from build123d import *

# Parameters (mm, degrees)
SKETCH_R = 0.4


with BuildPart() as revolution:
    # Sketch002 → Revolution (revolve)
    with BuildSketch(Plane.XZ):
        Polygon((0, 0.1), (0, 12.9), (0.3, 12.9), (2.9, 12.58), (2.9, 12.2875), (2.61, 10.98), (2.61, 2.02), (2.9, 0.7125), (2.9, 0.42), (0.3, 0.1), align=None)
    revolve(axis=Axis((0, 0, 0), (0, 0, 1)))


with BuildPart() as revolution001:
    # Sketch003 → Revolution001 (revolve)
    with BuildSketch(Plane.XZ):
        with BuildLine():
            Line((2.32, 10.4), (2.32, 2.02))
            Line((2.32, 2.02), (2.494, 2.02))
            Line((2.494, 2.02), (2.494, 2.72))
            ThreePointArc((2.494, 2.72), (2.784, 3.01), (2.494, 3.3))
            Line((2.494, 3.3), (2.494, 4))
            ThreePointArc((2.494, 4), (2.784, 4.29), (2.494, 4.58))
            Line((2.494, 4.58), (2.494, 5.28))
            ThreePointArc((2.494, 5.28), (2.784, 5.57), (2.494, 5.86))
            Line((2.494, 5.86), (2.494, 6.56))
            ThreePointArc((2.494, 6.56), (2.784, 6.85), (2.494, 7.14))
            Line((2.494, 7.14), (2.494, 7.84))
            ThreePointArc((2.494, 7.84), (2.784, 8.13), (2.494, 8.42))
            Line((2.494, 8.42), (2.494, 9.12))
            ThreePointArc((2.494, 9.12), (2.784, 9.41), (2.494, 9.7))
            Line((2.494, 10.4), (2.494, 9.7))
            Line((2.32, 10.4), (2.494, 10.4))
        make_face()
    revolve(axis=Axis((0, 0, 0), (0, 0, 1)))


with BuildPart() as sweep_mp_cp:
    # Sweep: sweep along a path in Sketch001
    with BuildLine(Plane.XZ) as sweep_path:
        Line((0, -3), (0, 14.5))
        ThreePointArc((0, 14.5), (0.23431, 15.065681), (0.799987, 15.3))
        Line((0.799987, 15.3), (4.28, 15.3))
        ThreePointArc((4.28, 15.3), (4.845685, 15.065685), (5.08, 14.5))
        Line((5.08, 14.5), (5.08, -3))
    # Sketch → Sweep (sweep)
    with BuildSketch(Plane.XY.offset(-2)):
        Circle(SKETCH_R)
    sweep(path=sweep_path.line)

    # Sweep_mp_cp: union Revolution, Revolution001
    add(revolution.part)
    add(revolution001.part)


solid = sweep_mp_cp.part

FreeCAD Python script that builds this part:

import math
import FreeCAD as App
import Part
import Sketcher
from FreeCAD import Vector
Q = App.Units.Quantity

doc = App.newDocument("Part")
params = doc.addObject("Spreadsheet::Sheet", "Params")
for row, (alias, value) in enumerate([
    ("sketch1_width", "0.3 mm"),
    ("sketch1_height", "12.8 mm"),
    ("sketch1_height2", "8.96 mm"),
    ("revolution_angle", "360 deg"),
    ("sketch2_radius", "0.29 mm"),
    ("sketch2_height", "0.7 mm"),
    ("revolution2_angle", "360 deg"),
    ("sketch3_diameter", "0.8 mm"),
    ("sketch4_radius", "0.8 mm"),
    ("sketch4_height", "17.5 mm"),
], start=1):
    params.set(f"A{row}", alias)
    params.set(f"B{row}", "=" + value)
    params.setAlias(f"B{row}", alias)

body = doc.addObject("PartDesign::Body", "Body")

sketch1 = body.newObject("Sketcher::SketchObject", "Sketch")
sketch1.AttachmentSupport = (doc.getObject("XZ_Plane"), [""])
sketch1.MapMode = "FlatFace"
sketch1.addGeometry(Part.LineSegment(Vector(0, 12.9, 0), Vector(0, 0.1, 0)), False)
sketch1.addGeometry(Part.LineSegment(Vector(0, 0.1, 0), Vector(0.3, 0.1, 0)), False)
sketch1.addGeometry(Part.LineSegment(Vector(0.3, 0.1, 0), Vector(2.9, 0.42, 0)), False)
sketch1.addGeometry(Part.LineSegment(Vector(2.9, 0.42, 0), Vector(2.9, 0.71, 0)), False)
sketch1.addGeometry(Part.LineSegment(Vector(2.9, 0.71, 0), Vector(2.61, 2.02, 0)), False)
sketch1.addGeometry(Part.LineSegment(Vector(2.61, 2.02, 0), Vector(2.61, 10.98, 0)), False)
sketch1.addGeometry(Part.LineSegment(Vector(2.61, 10.98, 0), Vector(2.9, 12.29, 0)), False)
sketch1.addGeometry(Part.LineSegment(Vector(2.9, 12.29, 0), Vector(2.9, 12.58, 0)), False)
sketch1.addGeometry(Part.LineSegment(Vector(2.9, 12.58, 0), Vector(0.3, 12.9, 0)), False)
sketch1.addGeometry(Part.LineSegment(Vector(0.3, 12.9, 0), Vector(0, 12.9, 0)), False)
sketch1.addConstraint(Sketcher.Constraint("Coincident", 0, 2, 1, 1))
sketch1.addConstraint(Sketcher.Constraint("Coincident", 1, 2, 2, 1))
sketch1.addConstraint(Sketcher.Constraint("Coincident", 2, 2, 3, 1))
sketch1.addConstraint(Sketcher.Constraint("Coincident", 3, 2, 4, 1))
sketch1.addConstraint(Sketcher.Constraint("Coincident", 4, 2, 5, 1))
sketch1.addConstraint(Sketcher.Constraint("Coincident", 5, 2, 6, 1))
sketch1.addConstraint(Sketcher.Constraint("Coincident", 6, 2, 7, 1))
sketch1.addConstraint(Sketcher.Constraint("Coincident", 7, 2, 8, 1))
sketch1.addConstraint(Sketcher.Constraint("Coincident", 8, 2, 9, 1))
sketch1.addConstraint(Sketcher.Constraint("Coincident", 9, 2, 0, 1))
sketch1.addConstraint(Sketcher.Constraint("Vertical", 0))
sketch1.addConstraint(Sketcher.Constraint("Horizontal", 1))
sketch1.addConstraint(Sketcher.Constraint("Vertical", 3))
sketch1.addConstraint(Sketcher.Constraint("Vertical", 5))
sketch1.addConstraint(Sketcher.Constraint("Vertical", 7))
sketch1.addConstraint(Sketcher.Constraint("Horizontal", 9))
sketch1.addConstraint(Sketcher.Constraint("PointOnObject", 0, 2, -2))
sketch1.addConstraint(Sketcher.Constraint("Vertical", 3, 2, 6, 2))
sketch1.addConstraint(Sketcher.Constraint("Vertical", 1, 2, 8, 2))
sketch1.addConstraint(Sketcher.Constraint("Equal", 3, 7))
sketch1.addConstraint(Sketcher.Constraint("Equal", 4, 6))
sketch1.addConstraint(Sketcher.Constraint("Equal", 2, 8))
sketch1.addConstraint(Sketcher.Constraint("DistanceX", 1, 1, 1, 2, Q("0.3 mm")))
sketch1.addConstraint(Sketcher.Constraint("DistanceY", 0, 2, 0, 1, Q("12.8 mm")))
sketch1.addConstraint(Sketcher.Constraint("DistanceY", 5, 1, 5, 2, Q("8.96 mm")))
sketch1.addConstraint(Sketcher.Constraint("DistanceY", -1, 1, 0, 2, Q("0.1 mm")))
sketch1.addConstraint(Sketcher.Constraint("DistanceX", -1, 1, 2, 2, Q("2.9 mm")))
sketch1.addConstraint(Sketcher.Constraint("DistanceY", 2, 2, 4, 2, Q("1.6 mm")))
sketch1.addConstraint(Sketcher.Constraint("DistanceX", -1, 1, 4, 2, Q("2.61 mm")))
sketch1.addConstraint(Sketcher.Constraint("DistanceY", 3, 1, 3, 2, Q("0.2925 mm")))
sketch1.setExpression("Constraints[22]", "Params.sketch1_width")
sketch1.setExpression("Constraints[23]", "Params.sketch1_height")
sketch1.setExpression("Constraints[24]", "Params.sketch1_height2")
revolution = body.newObject("PartDesign::Revolution", "Revolution")
revolution.Profile = sketch1
revolution.ReferenceAxis = (sketch1, ["V_Axis"])
revolution.setExpression("Angle", "Params.revolution_angle")
body2 = doc.addObject("PartDesign::Body", "Body001")

sketch2 = body2.newObject("Sketcher::SketchObject", "Sketch001")
sketch2.AttachmentSupport = (doc.getObject("XZ_Plane001"), [""])
sketch2.MapMode = "FlatFace"
sketch2.addGeometry(Part.LineSegment(Vector(2.32, 10.4, 0), Vector(2.32, 2.02, 0)), False)
sketch2.addGeometry(Part.LineSegment(Vector(2.32, 2.02, 0), Vector(2.49, 2.02, 0)), False)
sketch2.addGeometry(Part.LineSegment(Vector(2.49, 2.02, 0), Vector(2.49, 2.72, 0)), False)
sketch2.addGeometry(Part.ArcOfCircle(Part.Circle(Vector(2.49, 3.01, 0), Vector(0, 0, 1), 0.29), math.radians(-90), math.radians(90)), False)
sketch2.addGeometry(Part.LineSegment(Vector(2.49, 3.3, 0), Vector(2.49, 4, 0)), False)
sketch2.addGeometry(Part.ArcOfCircle(Part.Circle(Vector(2.49, 4.29, 0), Vector(0, 0, 1), 0.29), math.radians(-90), math.radians(90)), False)
sketch2.addGeometry(Part.LineSegment(Vector(2.49, 4.58, 0), Vector(2.49, 5.28, 0)), False)
sketch2.addGeometry(Part.ArcOfCircle(Part.Circle(Vector(2.49, 5.57, 0), Vector(0, 0, 1), 0.29), math.radians(-90), math.radians(90)), False)
sketch2.addGeometry(Part.LineSegment(Vector(2.49, 5.86, 0), Vector(2.49, 6.56, 0)), False)
sketch2.addGeometry(Part.ArcOfCircle(Part.Circle(Vector(2.49, 6.85, 0), Vector(0, 0, 1), 0.29), math.radians(-90), math.radians(90)), False)
sketch2.addGeometry(Part.LineSegment(Vector(2.49, 7.14, 0), Vector(2.49, 7.84, 0)), False)
sketch2.addGeometry(Part.ArcOfCircle(Part.Circle(Vector(2.49, 8.13, 0), Vector(0, 0, 1), 0.29), math.radians(-90), math.radians(90)), False)
sketch2.addGeometry(Part.LineSegment(Vector(2.49, 8.42, 0), Vector(2.49, 9.12, 0)), False)
sketch2.addGeometry(Part.ArcOfCircle(Part.Circle(Vector(2.49, 9.41, 0), Vector(0, 0, 1), 0.29), math.radians(-90), math.radians(90)), False)
sketch2.addGeometry(Part.LineSegment(Vector(2.49, 9.7, 0), Vector(2.49, 10.4, 0)), False)
sketch2.addGeometry(Part.LineSegment(Vector(2.49, 10.4, 0), Vector(2.32, 10.4, 0)), False)
sketch2.addConstraint(Sketcher.Constraint("Coincident", 0, 2, 1, 1))
sketch2.addConstraint(Sketcher.Constraint("Coincident", 1, 2, 2, 1))
sketch2.addConstraint(Sketcher.Constraint("Coincident", 2, 2, 3, 1))
sketch2.addConstraint(Sketcher.Constraint("Coincident", 3, 2, 4, 1))
sketch2.addConstraint(Sketcher.Constraint("Coincident", 4, 2, 5, 1))
sketch2.addConstraint(Sketcher.Constraint("Coincident", 5, 2, 6, 1))
sketch2.addConstraint(Sketcher.Constraint("Coincident", 6, 2, 7, 1))
sketch2.addConstraint(Sketcher.Constraint("Coincident", 7, 2, 8, 1))
sketch2.addConstraint(Sketcher.Constraint("Coincident", 8, 2, 9, 1))
sketch2.addConstraint(Sketcher.Constraint("Coincident", 9, 2, 10, 1))
sketch2.addConstraint(Sketcher.Constraint("Coincident", 10, 2, 11, 1))
sketch2.addConstraint(Sketcher.Constraint("Coincident", 11, 2, 12, 1))
sketch2.addConstraint(Sketcher.Constraint("Coincident", 12, 2, 13, 1))
sketch2.addConstraint(Sketcher.Constraint("Coincident", 13, 2, 14, 1))
sketch2.addConstraint(Sketcher.Constraint("Coincident", 14, 2, 15, 1))
sketch2.addConstraint(Sketcher.Constraint("Coincident", 15, 2, 0, 1))
sketch2.addConstraint(Sketcher.Constraint("Vertical", 0))
sketch2.addConstraint(Sketcher.Constraint("Horizontal", 1))
sketch2.addConstraint(Sketcher.Constraint("Vertical", 2))
sketch2.addConstraint(Sketcher.Constraint("Vertical", 4))
sketch2.addConstraint(Sketcher.Constraint("Vertical", 6))
sketch2.addConstraint(Sketcher.Constraint("Vertical", 8))
sketch2.addConstraint(Sketcher.Constraint("Vertical", 10))
sketch2.addConstraint(Sketcher.Constraint("Vertical", 12))
sketch2.addConstraint(Sketcher.Constraint("Vertical", 14))
sketch2.addConstraint(Sketcher.Constraint("Horizontal", 15))
sketch2.addConstraint(Sketcher.Constraint("Equal", 3, 5))
sketch2.addConstraint(Sketcher.Constraint("Equal", 5, 7))
sketch2.addConstraint(Sketcher.Constraint("Equal", 7, 9))
sketch2.addConstraint(Sketcher.Constraint("Equal", 9, 11))
sketch2.addConstraint(Sketcher.Constraint("Equal", 11, 13))
sketch2.addConstraint(Sketcher.Constraint("Vertical", 3, 3, 5, 3))
sketch2.addConstraint(Sketcher.Constraint("Vertical", 5, 3, 7, 3))
sketch2.addConstraint(Sketcher.Constraint("Vertical", 7, 3, 9, 3))
sketch2.addConstraint(Sketcher.Constraint("Vertical", 9, 3, 11, 3))
sketch2.addConstraint(Sketcher.Constraint("Vertical", 11, 3, 13, 3))
sketch2.addConstraint(Sketcher.Constraint("Vertical", 13, 3, 1, 2))
sketch2.addConstraint(Sketcher.Constraint("Vertical", 2, 2, 3, 2))
sketch2.addConstraint(Sketcher.Constraint("Vertical", 4, 2, 5, 2))
sketch2.addConstraint(Sketcher.Constraint("Vertical", 6, 2, 7, 2))
sketch2.addConstraint(Sketcher.Constraint("Vertical", 8, 2, 9, 2))
sketch2.addConstraint(Sketcher.Constraint("Vertical", 10, 2, 11, 2))
sketch2.addConstraint(Sketcher.Constraint("Vertical", 12, 2, 13, 2))
sketch2.addConstraint(Sketcher.Constraint("Equal", 2, 4))
sketch2.addConstraint(Sketcher.Constraint("Equal", 4, 6))
sketch2.addConstraint(Sketcher.Constraint("Equal", 6, 8))
sketch2.addConstraint(Sketcher.Constraint("Equal", 8, 10))
sketch2.addConstraint(Sketcher.Constraint("Equal", 10, 12))
sketch2.addConstraint(Sketcher.Constraint("Equal", 12, 14))
sketch2.addConstraint(Sketcher.Constraint("Radius", 3, Q("0.29 mm")))
sketch2.addConstraint(Sketcher.Constraint("DistanceY", 2, 1, 2, 2, Q("0.7 mm")))
sketch2.addConstraint(Sketcher.Constraint("DistanceY", -1, 1, 4, 2, Q("4 mm")))
sketch2.addConstraint(Sketcher.Constraint("DistanceX", 1, 1, 1, 2, Q("0.174 mm")))
sketch2.addConstraint(Sketcher.Constraint("DistanceX", -1, 1, 0, 2, Q("2.32 mm")))
sketch2.setExpression("Constraints[49]", "Params.sketch2_radius")
sketch2.setExpression("Constraints[50]", "Params.sketch2_height")
revolution2 = body2.newObject("PartDesign::Revolution", "Revolution001")
revolution2.Profile = sketch2
revolution2.ReferenceAxis = (sketch2, ["V_Axis"])
revolution2.setExpression("Angle", "Params.revolution2_angle")
body3 = doc.addObject("PartDesign::Body", "Body002")

sketch3 = body3.newObject("Sketcher::SketchObject", "Sketch002")
sketch3.AttachmentSupport = (doc.getObject("XY_Plane002"), [""])
sketch3.MapMode = "FlatFace"
sketch3.AttachmentOffset = App.Placement(Vector(0, 0, -2), App.Rotation())
sketch3.addGeometry(Part.Circle(Vector(0, 0, 0), Vector(0, 0, 1), 0.4), False)
sketch3.addConstraint(Sketcher.Constraint("Coincident", 0, 3, -1, 1))
sketch3.addConstraint(Sketcher.Constraint("Diameter", 0, Q("0.8 mm")))
sketch3.setExpression("Constraints[1]", "Params.sketch3_diameter")

sketch4 = body3.newObject("Sketcher::SketchObject", "Sketch003")
sketch4.AttachmentSupport = (doc.getObject("XZ_Plane002"), [""])
sketch4.MapMode = "FlatFace"
sketch4.addGeometry(Part.LineSegment(Vector(0, -3, 0), Vector(0, 14.5, 0)), False)
sketch4.addGeometry(Part.ArcOfCircle(Part.Circle(Vector(0.8, 14.5, 0), Vector(0, 0, 1), 0.8), math.radians(90), math.radians(180)), False)
sketch4.addGeometry(Part.LineSegment(Vector(0.8, 15.3, 0), Vector(4.3, 15.3, 0)), False)
sketch4.addGeometry(Part.ArcOfCircle(Part.Circle(Vector(4.3, 14.5, 0), Vector(0, 0, 1), 0.8), math.radians(0), math.radians(90)), False)
sketch4.addGeometry(Part.LineSegment(Vector(5.1, 14.5, 0), Vector(5.1, -3, 0)), False)
sketch4.addConstraint(Sketcher.Constraint("Tangent", 0, 2, 1, 2))
sketch4.addConstraint(Sketcher.Constraint("Coincident", 1, 1, 2, 1))
sketch4.addConstraint(Sketcher.Constraint("Tangent", 2, 2, 3, 2))
sketch4.addConstraint(Sketcher.Constraint("Tangent", 3, 1, 4, 1))
sketch4.addConstraint(Sketcher.Constraint("Vertical", 0))
sketch4.addConstraint(Sketcher.Constraint("Horizontal", 2))
sketch4.addConstraint(Sketcher.Constraint("Vertical", 4))
sketch4.addConstraint(Sketcher.Constraint("Equal", 1, 3))
sketch4.addConstraint(Sketcher.Constraint("PointOnObject", 0, 1, -2))
sketch4.addConstraint(Sketcher.Constraint("Horizontal", 0, 1, 4, 2))
sketch4.addConstraint(Sketcher.Constraint("Radius", 1, Q("0.8 mm")))
sketch4.addConstraint(Sketcher.Constraint("DistanceY", 0, 1, 0, 2, Q("17.5 mm")))
sketch4.addConstraint(Sketcher.Constraint("DistanceY", 0, 1, -1, 1, Q("3 mm")))
sketch4.addConstraint(Sketcher.Constraint("DistanceX", -1, 1, 3, 3, Q("4.279999 mm")))
sketch4.addConstraint(Sketcher.Constraint("DistanceX", 2, 1, 2, 2, Q("3.480013 mm")))
sketch4.setExpression("Constraints[10]", "Params.sketch4_radius")
sketch4.setExpression("Constraints[11]", "Params.sketch4_height")
doc.recompute()

additivepipe = body3.newObject("PartDesign::AdditivePipe", "AdditivePipe")
additivepipe.Profile = sketch3
additivepipe.Spine = (sketch4, ["Edge1", "Edge2", "Edge3", "Edge4", "Edge5"])
doc.recompute()

boolean = body3.newObject("PartDesign::Boolean", "Boolean")
boolean.Type = "Fuse"
boolean.addObjects([body])
doc.recompute()

boolean2 = body3.newObject("PartDesign::Boolean", "Boolean001")
boolean2.Type = "Fuse"
boolean2.addObjects([body2])

doc.recompute()
